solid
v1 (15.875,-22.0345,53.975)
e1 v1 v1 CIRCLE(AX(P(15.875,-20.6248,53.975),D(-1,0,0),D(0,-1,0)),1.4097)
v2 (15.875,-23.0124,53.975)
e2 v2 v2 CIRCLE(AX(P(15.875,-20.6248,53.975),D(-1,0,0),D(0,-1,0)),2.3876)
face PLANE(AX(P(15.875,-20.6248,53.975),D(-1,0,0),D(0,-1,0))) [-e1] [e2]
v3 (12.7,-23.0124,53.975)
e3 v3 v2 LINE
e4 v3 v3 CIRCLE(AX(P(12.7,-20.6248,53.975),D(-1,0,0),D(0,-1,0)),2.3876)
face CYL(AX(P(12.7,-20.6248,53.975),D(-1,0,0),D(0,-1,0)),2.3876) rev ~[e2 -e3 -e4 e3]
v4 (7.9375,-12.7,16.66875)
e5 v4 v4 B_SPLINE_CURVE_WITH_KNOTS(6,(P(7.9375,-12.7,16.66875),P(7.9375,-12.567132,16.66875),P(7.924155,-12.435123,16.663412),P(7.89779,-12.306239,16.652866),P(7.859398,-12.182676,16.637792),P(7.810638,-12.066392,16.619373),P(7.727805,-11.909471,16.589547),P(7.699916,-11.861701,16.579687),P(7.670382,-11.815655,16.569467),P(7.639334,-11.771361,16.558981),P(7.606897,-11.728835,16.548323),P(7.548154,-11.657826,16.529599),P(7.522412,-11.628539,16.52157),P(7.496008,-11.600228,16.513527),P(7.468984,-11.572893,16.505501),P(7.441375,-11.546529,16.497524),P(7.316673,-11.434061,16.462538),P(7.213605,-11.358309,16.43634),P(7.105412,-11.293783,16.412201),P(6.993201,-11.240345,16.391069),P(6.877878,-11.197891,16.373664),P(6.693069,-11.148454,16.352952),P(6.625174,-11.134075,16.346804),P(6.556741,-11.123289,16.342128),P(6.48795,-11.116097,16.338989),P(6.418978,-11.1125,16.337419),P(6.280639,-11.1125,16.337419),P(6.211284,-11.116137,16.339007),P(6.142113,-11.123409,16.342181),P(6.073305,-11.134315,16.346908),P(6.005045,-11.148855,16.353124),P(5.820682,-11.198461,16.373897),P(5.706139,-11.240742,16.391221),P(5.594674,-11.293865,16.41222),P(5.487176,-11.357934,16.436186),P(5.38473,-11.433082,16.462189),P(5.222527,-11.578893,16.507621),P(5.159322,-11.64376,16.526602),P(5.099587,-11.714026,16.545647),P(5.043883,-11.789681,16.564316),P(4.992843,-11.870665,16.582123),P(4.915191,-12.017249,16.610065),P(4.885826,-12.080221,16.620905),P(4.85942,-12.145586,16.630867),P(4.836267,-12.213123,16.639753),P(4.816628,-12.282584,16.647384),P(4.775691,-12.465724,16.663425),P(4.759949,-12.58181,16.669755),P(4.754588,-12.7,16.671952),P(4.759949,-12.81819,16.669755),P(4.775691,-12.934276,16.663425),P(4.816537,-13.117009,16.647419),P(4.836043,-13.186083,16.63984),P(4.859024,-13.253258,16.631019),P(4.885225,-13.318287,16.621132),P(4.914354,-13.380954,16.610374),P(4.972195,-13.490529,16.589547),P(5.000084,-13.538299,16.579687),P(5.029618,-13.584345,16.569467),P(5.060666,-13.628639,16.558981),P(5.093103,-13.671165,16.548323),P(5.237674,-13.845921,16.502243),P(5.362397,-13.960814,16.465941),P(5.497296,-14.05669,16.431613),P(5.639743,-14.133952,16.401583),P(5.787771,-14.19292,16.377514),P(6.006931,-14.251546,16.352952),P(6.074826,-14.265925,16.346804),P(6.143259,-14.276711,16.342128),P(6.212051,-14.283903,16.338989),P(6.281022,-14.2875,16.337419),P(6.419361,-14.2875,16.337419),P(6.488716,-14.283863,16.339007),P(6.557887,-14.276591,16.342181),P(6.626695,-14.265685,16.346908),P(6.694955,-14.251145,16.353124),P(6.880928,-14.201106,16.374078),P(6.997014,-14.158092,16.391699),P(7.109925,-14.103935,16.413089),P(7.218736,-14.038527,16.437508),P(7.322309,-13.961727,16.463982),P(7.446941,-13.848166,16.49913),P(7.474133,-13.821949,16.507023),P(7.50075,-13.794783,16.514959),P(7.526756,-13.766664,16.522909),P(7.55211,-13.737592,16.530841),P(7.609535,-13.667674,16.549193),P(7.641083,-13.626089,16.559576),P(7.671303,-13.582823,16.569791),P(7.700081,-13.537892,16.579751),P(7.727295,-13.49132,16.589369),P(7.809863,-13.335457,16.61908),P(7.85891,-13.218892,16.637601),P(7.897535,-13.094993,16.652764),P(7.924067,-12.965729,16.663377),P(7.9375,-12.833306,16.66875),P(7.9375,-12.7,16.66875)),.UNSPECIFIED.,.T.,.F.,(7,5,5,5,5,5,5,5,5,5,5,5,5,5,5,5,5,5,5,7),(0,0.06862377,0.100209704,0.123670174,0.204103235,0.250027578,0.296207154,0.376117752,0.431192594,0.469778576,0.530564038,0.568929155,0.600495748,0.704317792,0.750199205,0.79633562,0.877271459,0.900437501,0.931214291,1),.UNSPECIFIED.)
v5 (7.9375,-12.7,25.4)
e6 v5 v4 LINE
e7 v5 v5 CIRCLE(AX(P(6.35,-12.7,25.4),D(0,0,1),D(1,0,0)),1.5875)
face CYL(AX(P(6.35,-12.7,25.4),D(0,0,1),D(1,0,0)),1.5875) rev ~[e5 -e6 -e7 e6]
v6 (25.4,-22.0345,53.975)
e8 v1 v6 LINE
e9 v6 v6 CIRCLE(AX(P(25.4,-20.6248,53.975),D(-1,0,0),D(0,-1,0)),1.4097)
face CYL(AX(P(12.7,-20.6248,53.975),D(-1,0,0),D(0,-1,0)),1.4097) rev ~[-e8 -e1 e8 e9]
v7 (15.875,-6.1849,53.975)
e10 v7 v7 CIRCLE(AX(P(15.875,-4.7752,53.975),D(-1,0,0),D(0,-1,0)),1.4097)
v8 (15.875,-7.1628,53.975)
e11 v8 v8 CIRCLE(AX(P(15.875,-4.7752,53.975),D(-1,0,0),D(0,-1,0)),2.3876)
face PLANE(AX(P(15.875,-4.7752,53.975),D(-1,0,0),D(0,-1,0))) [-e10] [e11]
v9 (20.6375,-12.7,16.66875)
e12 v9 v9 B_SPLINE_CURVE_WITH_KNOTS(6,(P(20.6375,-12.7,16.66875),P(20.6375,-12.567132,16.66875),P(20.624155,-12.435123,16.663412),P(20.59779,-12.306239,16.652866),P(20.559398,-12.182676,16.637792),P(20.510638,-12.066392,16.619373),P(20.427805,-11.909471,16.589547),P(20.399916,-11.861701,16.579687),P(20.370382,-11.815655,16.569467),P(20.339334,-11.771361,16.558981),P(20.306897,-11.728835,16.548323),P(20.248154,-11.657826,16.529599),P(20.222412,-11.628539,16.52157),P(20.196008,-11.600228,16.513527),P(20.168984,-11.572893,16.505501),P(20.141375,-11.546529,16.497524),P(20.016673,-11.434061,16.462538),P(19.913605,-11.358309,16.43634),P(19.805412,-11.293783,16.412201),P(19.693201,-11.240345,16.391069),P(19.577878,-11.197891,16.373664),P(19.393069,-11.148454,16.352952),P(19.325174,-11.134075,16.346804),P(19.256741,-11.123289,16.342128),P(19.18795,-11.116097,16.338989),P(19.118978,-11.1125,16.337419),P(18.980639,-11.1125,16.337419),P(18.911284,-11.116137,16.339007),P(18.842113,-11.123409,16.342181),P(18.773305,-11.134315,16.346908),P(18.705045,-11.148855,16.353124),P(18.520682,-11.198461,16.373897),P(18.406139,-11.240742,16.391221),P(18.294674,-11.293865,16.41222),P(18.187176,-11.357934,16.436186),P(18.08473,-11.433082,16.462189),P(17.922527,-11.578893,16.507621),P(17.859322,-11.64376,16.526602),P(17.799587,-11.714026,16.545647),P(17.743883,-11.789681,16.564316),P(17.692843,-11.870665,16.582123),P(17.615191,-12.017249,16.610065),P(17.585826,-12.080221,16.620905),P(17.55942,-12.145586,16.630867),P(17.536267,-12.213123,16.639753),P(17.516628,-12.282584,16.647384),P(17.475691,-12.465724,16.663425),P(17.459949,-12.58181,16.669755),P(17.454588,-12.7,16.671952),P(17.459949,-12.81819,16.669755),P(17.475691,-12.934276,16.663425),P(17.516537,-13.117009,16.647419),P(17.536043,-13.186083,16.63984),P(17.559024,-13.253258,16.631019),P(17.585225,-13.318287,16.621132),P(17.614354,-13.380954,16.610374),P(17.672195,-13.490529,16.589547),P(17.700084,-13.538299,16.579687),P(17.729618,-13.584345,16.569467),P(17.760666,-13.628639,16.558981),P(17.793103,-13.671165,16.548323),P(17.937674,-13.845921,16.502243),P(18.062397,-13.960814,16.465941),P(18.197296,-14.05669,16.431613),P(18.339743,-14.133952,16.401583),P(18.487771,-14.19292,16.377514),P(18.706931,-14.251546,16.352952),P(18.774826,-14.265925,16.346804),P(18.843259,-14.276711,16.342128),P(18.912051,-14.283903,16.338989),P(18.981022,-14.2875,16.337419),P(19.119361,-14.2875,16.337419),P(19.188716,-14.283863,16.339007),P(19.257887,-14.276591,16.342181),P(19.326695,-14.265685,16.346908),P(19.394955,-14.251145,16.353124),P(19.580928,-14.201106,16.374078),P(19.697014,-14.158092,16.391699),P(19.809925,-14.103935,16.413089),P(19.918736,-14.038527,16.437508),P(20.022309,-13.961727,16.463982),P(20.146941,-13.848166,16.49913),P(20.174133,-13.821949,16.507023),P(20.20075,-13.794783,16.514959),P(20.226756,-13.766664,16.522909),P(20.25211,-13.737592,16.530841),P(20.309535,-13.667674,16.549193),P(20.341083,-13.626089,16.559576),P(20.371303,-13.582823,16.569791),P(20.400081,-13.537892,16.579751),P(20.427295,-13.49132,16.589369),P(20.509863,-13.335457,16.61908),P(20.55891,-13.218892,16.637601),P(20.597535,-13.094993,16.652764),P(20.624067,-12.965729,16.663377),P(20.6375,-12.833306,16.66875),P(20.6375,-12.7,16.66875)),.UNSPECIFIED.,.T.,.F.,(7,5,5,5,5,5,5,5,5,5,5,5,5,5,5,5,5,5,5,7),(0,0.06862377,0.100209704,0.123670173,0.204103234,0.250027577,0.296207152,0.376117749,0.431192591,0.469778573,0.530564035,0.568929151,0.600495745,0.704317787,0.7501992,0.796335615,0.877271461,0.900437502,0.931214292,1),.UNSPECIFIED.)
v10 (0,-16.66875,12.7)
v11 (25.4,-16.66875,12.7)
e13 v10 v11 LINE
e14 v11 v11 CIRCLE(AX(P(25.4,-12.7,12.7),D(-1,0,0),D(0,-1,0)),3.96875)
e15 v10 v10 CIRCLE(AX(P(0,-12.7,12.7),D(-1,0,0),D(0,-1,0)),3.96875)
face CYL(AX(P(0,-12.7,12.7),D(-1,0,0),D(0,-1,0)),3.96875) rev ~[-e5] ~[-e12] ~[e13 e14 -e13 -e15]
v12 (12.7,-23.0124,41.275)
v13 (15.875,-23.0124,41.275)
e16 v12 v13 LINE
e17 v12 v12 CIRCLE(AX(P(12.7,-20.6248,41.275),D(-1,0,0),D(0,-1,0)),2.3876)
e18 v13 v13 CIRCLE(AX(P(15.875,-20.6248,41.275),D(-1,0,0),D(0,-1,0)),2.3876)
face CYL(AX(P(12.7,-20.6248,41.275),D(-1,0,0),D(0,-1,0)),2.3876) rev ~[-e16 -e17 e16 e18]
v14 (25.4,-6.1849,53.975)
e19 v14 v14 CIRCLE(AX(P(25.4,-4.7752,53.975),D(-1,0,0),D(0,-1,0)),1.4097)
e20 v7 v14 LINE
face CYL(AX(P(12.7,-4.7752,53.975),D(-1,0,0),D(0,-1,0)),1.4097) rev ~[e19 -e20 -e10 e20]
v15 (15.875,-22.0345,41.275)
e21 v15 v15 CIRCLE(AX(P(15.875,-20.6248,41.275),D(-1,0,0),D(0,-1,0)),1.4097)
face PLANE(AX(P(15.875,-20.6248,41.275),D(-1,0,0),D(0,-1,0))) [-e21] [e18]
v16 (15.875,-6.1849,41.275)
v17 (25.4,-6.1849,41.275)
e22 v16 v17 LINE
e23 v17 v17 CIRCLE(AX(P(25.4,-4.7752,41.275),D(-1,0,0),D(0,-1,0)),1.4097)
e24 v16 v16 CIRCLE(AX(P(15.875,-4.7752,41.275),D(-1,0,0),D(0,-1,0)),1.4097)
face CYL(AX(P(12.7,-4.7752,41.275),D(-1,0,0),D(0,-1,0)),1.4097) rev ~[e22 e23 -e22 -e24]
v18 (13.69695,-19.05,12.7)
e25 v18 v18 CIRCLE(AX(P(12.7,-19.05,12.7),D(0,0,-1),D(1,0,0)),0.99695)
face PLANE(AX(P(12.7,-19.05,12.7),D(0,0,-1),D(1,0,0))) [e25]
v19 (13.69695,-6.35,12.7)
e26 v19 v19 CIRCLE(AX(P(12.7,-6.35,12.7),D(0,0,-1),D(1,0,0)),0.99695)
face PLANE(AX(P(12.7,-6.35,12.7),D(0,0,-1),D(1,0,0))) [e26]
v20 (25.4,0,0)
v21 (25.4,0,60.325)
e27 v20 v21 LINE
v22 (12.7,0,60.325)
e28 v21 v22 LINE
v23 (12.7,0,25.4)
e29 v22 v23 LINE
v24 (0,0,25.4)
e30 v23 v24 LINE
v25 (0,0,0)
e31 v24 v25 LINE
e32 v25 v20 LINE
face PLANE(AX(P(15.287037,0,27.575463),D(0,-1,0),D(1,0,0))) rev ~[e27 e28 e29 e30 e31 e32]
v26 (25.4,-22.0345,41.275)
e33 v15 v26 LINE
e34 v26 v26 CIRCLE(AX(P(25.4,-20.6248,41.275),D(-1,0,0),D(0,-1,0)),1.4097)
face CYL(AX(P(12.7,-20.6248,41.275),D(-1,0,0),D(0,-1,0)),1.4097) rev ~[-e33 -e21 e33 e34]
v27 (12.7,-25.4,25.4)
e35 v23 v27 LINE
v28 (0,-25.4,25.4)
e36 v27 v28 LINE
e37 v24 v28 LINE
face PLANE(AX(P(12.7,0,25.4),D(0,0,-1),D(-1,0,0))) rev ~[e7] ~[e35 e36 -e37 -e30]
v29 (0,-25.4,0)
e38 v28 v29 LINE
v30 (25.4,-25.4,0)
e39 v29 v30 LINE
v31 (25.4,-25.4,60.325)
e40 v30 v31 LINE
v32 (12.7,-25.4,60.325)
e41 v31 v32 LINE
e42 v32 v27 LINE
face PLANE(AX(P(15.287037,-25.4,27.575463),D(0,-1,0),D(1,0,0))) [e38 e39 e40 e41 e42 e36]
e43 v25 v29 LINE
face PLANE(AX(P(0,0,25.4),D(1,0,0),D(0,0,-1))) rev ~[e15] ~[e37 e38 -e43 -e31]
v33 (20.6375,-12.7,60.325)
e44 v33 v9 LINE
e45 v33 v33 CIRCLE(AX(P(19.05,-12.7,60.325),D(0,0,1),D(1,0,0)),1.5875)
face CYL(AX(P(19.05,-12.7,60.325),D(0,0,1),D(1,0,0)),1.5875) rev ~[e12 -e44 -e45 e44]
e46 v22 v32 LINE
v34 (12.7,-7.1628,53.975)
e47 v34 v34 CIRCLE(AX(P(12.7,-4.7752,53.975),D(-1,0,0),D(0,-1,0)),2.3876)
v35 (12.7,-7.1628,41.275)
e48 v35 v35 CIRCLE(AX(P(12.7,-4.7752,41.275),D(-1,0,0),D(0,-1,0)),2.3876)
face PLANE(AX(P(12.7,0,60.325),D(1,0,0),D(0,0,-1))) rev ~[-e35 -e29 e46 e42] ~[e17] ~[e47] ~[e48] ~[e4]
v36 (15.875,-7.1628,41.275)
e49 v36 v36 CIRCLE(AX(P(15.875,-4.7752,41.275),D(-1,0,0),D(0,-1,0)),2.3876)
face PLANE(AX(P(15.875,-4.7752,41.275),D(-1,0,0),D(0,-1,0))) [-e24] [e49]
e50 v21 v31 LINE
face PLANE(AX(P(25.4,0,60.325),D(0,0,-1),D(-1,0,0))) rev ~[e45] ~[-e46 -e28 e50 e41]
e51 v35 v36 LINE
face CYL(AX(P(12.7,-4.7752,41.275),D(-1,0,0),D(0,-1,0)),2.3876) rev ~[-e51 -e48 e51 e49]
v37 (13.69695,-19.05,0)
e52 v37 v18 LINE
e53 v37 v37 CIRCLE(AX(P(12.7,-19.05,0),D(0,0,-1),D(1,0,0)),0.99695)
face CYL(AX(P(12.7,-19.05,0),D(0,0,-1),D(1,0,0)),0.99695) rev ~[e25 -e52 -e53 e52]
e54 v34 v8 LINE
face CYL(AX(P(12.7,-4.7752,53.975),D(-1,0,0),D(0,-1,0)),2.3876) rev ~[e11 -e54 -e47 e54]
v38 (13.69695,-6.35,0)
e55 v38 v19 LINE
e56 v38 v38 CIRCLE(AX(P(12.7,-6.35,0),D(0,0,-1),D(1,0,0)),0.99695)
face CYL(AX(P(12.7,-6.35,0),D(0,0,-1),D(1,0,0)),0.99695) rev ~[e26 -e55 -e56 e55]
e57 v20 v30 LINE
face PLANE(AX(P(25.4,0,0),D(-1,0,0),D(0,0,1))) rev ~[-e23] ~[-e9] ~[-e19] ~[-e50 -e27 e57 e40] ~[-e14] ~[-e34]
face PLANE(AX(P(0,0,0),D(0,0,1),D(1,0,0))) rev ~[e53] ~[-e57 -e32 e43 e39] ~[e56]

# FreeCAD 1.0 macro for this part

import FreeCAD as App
import Part
import Sketcher
Q = App.Units.Quantity


def add_polygon(sketch, points):
    """Adds a closed chain of lines whose ends are joined by coincident constraints."""
    first, n = sketch.GeometryCount, len(points)
    for a, b in zip(points, points[1:] + points[:1]):
        sketch.addGeometry(Part.LineSegment(App.Vector(*a, 0), App.Vector(*b, 0)), False)
    for i in range(n):
        sketch.addConstraint(Sketcher.Constraint("Coincident", first + i, 2, first + (i + 1) % n, 1))

doc = App.newDocument("Part")
params = doc.addObject("Spreadsheet::Sheet", "Params")
for row, (alias, value) in enumerate([
    ("sketch1_width", "1 in"),
    ("sketch1_height", "2.375 in"),
    ("pad1_length", "1 in"),
    ("sketch2_diameter", "0.125 in"),
    ("pocket1_length", "1.93 in"),
    ("sketch3_diameter", "0.3125 in"),
    ("pocket2_length", "1 in"),
    ("sketch4_diameter", "0.111 in"),
    ("pocket3_length", "1 in"),
    ("sketch5_diameter", "0.188 in"),
    ("pocket4_length", "0.125 in"),
    ("pocket5_length", "0.5 in"),
    ("sketch7_diameter", "0.125 in"),
    ("pocket6_length", "0.54 in"),
], start=1):
    params.set(f"A{row}", alias)
    params.set(f"B{row}", "=" + value)
    params.setAlias(f"B{row}", alias)

body = doc.addObject("PartDesign::Body", "Body")

# Sketch on XZ plane
sketch1 = body.newObject("Sketcher::SketchObject", "Sketch")
sketch1.AttachmentSupport = (doc.getObject("XZ_Plane"), [""])
sketch1.MapMode = "FlatFace"
add_polygon(sketch1, [(0, 25), (0, 0), (25, 0), (25, 60), (13, 60), (13, 25)])  # lines 0-5
sketch1.addConstraint(Sketcher.Constraint("Vertical", 0))
sketch1.addConstraint(Sketcher.Constraint("Horizontal", 1))
sketch1.addConstraint(Sketcher.Constraint("Vertical", 2))
sketch1.addConstraint(Sketcher.Constraint("Horizontal", 3))
sketch1.addConstraint(Sketcher.Constraint("Vertical", 4))
sketch1.addConstraint(Sketcher.Constraint("Horizontal", 5))
sketch1.addConstraint(Sketcher.Constraint("Coincident", 0, 2, -1, 1))
sketch1.addConstraint(Sketcher.Constraint("Equal", 3, 5))
sketch1.addConstraint(Sketcher.Constraint("Equal", 1, 0))
sketch1.addConstraint(Sketcher.Constraint("DistanceX", 1, 1, 1, 2, Q("1 in")))
sketch1.addConstraint(Sketcher.Constraint("DistanceY", 2, 1, 2, 2, Q("2.375 in")))
sketch1.setExpression("Constraints[15]", "Params.sketch1_width")
sketch1.setExpression("Constraints[16]", "Params.sketch1_height")
pad1 = body.newObject("PartDesign::Pad", "Pad")
pad1.Profile = sketch1
pad1.setExpression("Length", "Params.pad1_length")

# Sketch on XY plane
sketch2 = body.newObject("Sketcher::SketchObject", "Sketch001")
sketch2.AttachmentSupport = (doc.getObject("XY_Plane"), [""])
sketch2.MapMode = "FlatFace"
sketch2.AttachmentOffset = App.Placement(App.Vector(0, 0, 2.375 * 25.4), App.Rotation())
sketch2.addGeometry(Part.Circle(App.Vector(19.1, -12.7, 0), App.Vector(0, 0, 1), 1.6), False)
sketch2.addConstraint(Sketcher.Constraint("Diameter", 0, Q("0.125 in")))
sketch2.addConstraint(Sketcher.Constraint("DistanceY", 0, 3, -1, 1, Q("0.5 in")))
sketch2.addConstraint(Sketcher.Constraint("DistanceX", -1, 1, 0, 3, Q("0.75 in")))
sketch2.setExpression("Constraints[0]", "Params.sketch2_diameter")
pocket1 = body.newObject("PartDesign::Pocket", "Pocket")
pocket1.Profile = sketch2
pocket1.setExpression("Length", "Params.pocket1_length")

# Sketch on YZ plane
sketch3 = body.newObject("Sketcher::SketchObject", "Sketch002")
sketch3.AttachmentSupport = (doc.getObject("YZ_Plane"), [""])
sketch3.MapMode = "FlatFace"
sketch3.addGeometry(Part.Circle(App.Vector(-12.7, 12.7, 0), App.Vector(0, 0, 1), 4), False)
sketch3.addConstraint(Sketcher.Constraint("Diameter", 0, Q("0.3125 in")))
sketch3.addConstraint(Sketcher.Constraint("DistanceX", 0, 3, -1, 1, Q("0.5 in")))
sketch3.addConstraint(Sketcher.Constraint("DistanceY", -1, 1, 0, 3, Q("0.5 in")))
sketch3.setExpression("Constraints[0]", "Params.sketch3_diameter")
pocket2 = body.newObject("PartDesign::Pocket", "Pocket001")
pocket2.Profile = sketch3
pocket2.setExpression("Length", "Params.pocket2_length")
pocket2.Reversed = True

# Sketch on YZ plane
sketch4 = body.newObject("Sketcher::SketchObject", "Sketch003")
sketch4.AttachmentSupport = (doc.getObject("YZ_Plane"), [""])
sketch4.MapMode = "FlatFace"
sketch4.AttachmentOffset = App.Placement(App.Vector(0, 0, 0.5 * 25.4), App.Rotation())
sketch4.addGeometry(Part.Circle(App.Vector(-4.8, 54, 0), App.Vector(0, 0, 1), 1.4), False)
sketch4.addGeometry(Part.Circle(App.Vector(-4.8, 41.3, 0), App.Vector(0, 0, 1), 1.4), False)
sketch4.addGeometry(Part.Circle(App.Vector(-20.6, 54, 0), App.Vector(0, 0, 1), 1.4), False)
sketch4.addGeometry(Part.Circle(App.Vector(-20.6, 41.3, 0), App.Vector(0, 0, 1), 1.4), False)
sketch4.addConstraint(Sketcher.Constraint("Equal", 0, 1))
sketch4.addConstraint(Sketcher.Constraint("Equal", 1, 2))
sketch4.addConstraint(Sketcher.Constraint("Equal", 2, 3))
sketch4.addConstraint(Sketcher.Constraint("Horizontal", 0, 3, 2, 3))
sketch4.addConstraint(Sketcher.Constraint("Horizontal", 1, 3, 3, 3))
sketch4.addConstraint(Sketcher.Constraint("Vertical", 0, 3, 1, 3))
sketch4.addConstraint(Sketcher.Constraint("Vertical", 2, 3, 3, 3))
sketch4.addConstraint(Sketcher.Constraint("Diameter", 0, Q("0.111 in")))
sketch4.addConstraint(Sketcher.Constraint("DistanceY", 1, 3, 0, 3, Q("0.5 in")))
sketch4.addConstraint(Sketcher.Constraint("DistanceX", 0, 3, -1, 1, Q("0.188 in")))
sketch4.addConstraint(Sketcher.Constraint("DistanceY", -1, 1, 0, 3, Q("2.125 in")))
sketch4.addConstraint(Sketcher.Constraint("DistanceX", 2, 3, -1, 1, Q("0.812 in")))
sketch4.setExpression("Constraints[7]", "Params.sketch4_diameter")
pocket3 = body.newObject("PartDesign::Pocket", "Pocket002")
pocket3.Profile = sketch4
pocket3.setExpression("Length", "Params.pocket3_length")
pocket3.Reversed = True

# Sketch on YZ plane
sketch5 = body.newObject("Sketcher::SketchObject", "Sketch004")
sketch5.AttachmentSupport = (doc.getObject("YZ_Plane"), [""])
sketch5.MapMode = "FlatFace"
sketch5.AttachmentOffset = App.Placement(App.Vector(0, 0, 0.5 * 25.4), App.Rotation())
sketch5.addGeometry(Part.Circle(App.Vector(-4.8, 54, 0), App.Vector(0, 0, 1), 2.4), False)
sketch5.addGeometry(Part.Circle(App.Vector(-4.8, 41.3, 0), App.Vector(0, 0, 1), 2.4), False)
sketch5.addGeometry(Part.Circle(App.Vector(-20.6, 41.3, 0), App.Vector(0, 0, 1), 2.4), False)
sketch5.addGeometry(Part.Circle(App.Vector(-20.6, 54, 0), App.Vector(0, 0, 1), 2.4), False)
sketch5.addConstraint(Sketcher.Constraint("Equal", 0, 1))
sketch5.addConstraint(Sketcher.Constraint("Equal", 1, 2))
sketch5.addConstraint(Sketcher.Constraint("Equal", 2, 3))
sketch5.addConstraint(Sketcher.Constraint("Horizontal", 1, 3, 2, 3))
sketch5.addConstraint(Sketcher.Constraint("Horizontal", 0, 3, 3, 3))
sketch5.addConstraint(Sketcher.Constraint("Vertical", 0, 3, 1, 3))
sketch5.addConstraint(Sketcher.Constraint("Vertical", 2, 3, 3, 3))
sketch5.addConstraint(Sketcher.Constraint("Diameter", 0, Q("0.188 in")))
sketch5.addConstraint(Sketcher.Constraint("DistanceY", 1, 3, 0, 3, Q("0.5 in")))
sketch5.addConstraint(Sketcher.Constraint("DistanceX", 0, 3, -1, 1, Q("0.188 in")))
sketch5.addConstraint(Sketcher.Constraint("DistanceY", -1, 1, 0, 3, Q("2.125 in")))
sketch5.addConstraint(Sketcher.Constraint("DistanceX", 2, 3, -1, 1, Q("0.812 in")))
sketch5.setExpression("Constraints[7]", "Params.sketch5_diameter")
pocket4 = body.newObject("PartDesign::Pocket", "Pocket003")
pocket4.Profile = sketch5
pocket4.setExpression("Length", "Params.pocket4_length")
pocket4.Reversed = True

# Sketch on XY plane
sketch6 = body.newObject("Sketcher::SketchObject", "Sketch005")
sketch6.AttachmentSupport = (doc.getObject("XY_Plane"), [""])
sketch6.MapMode = "FlatFace"
sketch6.addGeometry(Part.Circle(App.Vector(12.7, -19.1, 0), App.Vector(0, 0, 1), 1), False)
sketch6.addGeometry(Part.Circle(App.Vector(12.7, -6.3, 0), App.Vector(0, 0, 1), 1), False)
sketch6.addConstraint(Sketcher.Constraint("Equal", 0, 1))
sketch6.addConstraint(Sketcher.Constraint("Vertical", 0, 3, 1, 3))
sketch6.addConstraint(Sketcher.Constraint("Diameter", 0, Q("0.0785 in")))
sketch6.addConstraint(Sketcher.Constraint("DistanceX", -1, 1, 0, 3, Q("0.5 in")))
sketch6.addConstraint(Sketcher.Constraint("DistanceY", 0, 3, 1, 3, Q("0.5 in")))
sketch6.addConstraint(Sketcher.Constraint("DistanceY", 0, 3, -1, 1, Q("0.75 in")))
pocket5 = body.newObject("PartDesign::Pocket", "Pocket004")
pocket5.Profile = sketch6
pocket5.setExpression("Length", "Params.pocket5_length")
pocket5.Reversed = True

# Sketch on XY plane
sketch7 = body.newObject("Sketcher::SketchObject", "Sketch006")
sketch7.AttachmentSupport = (doc.getObject("XY_Plane"), [""])
sketch7.MapMode = "FlatFace"
sketch7.AttachmentOffset = App.Placement(App.Vector(0, 0, 1 * 25.4), App.Rotation())
sketch7.addGeometry(Part.Circle(App.Vector(6.3, -12.7, 0), App.Vector(0, 0, 1), 1.6), False)
sketch7.addConstraint(Sketcher.Constraint("Diameter", 0, Q("0.125 in")))
sketch7.addConstraint(Sketcher.Constraint("DistanceY", 0, 3, -1, 1, Q("0.5 in")))
sketch7.addConstraint(Sketcher.Constraint("DistanceX", -1, 1, 0, 3, Q("0.25 in")))
sketch7.setExpression("Constraints[0]", "Params.sketch7_diameter")
pocket6 = body.newObject("PartDesign::Pocket", "Pocket005")
pocket6.Profile = sketch7
pocket6.setExpression("Length", "Params.pocket6_length")

doc.recompute()
